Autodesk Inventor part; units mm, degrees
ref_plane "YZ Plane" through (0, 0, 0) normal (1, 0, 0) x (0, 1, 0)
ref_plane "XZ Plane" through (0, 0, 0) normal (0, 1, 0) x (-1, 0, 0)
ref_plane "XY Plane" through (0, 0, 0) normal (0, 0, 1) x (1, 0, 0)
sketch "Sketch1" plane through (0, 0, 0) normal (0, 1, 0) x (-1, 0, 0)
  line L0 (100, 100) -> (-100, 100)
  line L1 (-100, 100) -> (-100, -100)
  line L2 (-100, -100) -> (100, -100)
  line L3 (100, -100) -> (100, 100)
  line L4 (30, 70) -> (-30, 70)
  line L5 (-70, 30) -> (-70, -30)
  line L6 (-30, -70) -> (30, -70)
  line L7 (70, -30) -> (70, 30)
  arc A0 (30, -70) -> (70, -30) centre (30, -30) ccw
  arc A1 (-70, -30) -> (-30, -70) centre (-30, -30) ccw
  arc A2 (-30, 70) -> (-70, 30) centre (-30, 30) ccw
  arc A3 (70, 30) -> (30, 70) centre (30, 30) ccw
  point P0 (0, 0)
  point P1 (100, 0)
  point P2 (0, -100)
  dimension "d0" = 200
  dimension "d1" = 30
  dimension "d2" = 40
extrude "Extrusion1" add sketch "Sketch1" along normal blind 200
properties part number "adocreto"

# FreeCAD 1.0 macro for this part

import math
import FreeCAD as App
import Part
import Sketcher

V = App.Vector
Q = App.Units.Quantity

doc = App.newDocument("Part")
body = doc.addObject("PartDesign::Body", "Body")

# Sketch on XZ plane
sketch1 = doc.addObject("Sketcher::SketchObject", "Sketch")
body.addObject(sketch1)
sketch1.AttachmentSupport = (doc.XZ_Plane, [""])
sketch1.MapMode = "FlatFace"
sketch1.addGeometry([
    Part.LineSegment(V(-100, -100, 0), V(-100, 100, 0)),  # 0
    Part.LineSegment(V(-100, 100, 0), V(100, 100, 0)),  # 1
    Part.LineSegment(V(100, 100, 0), V(100, -100, 0)),  # 2
    Part.LineSegment(V(100, -100, 0), V(-100, -100, 0)),  # 3
    Part.LineSegment(V(30, 70, 0), V(-30, 70, 0)),  # 4
    Part.ArcOfCircle(Part.Circle(V(-30, 30, 0), V(0, 0, 1), 40), math.radians(90), math.radians(180)),  # 5
    Part.LineSegment(V(-70, 30, 0), V(-70, -30, 0)),  # 6
    Part.ArcOfCircle(Part.Circle(V(-30, -30, 0), V(0, 0, 1), 40), math.radians(180), math.radians(270)),  # 7
    Part.LineSegment(V(-30, -70, 0), V(30, -70, 0)),  # 8
    Part.ArcOfCircle(Part.Circle(V(30, -30, 0), V(0, 0, 1), 40), math.radians(-90), math.radians(0)),  # 9
    Part.LineSegment(V(70, -30, 0), V(70, 30, 0)),  # 10
    Part.ArcOfCircle(Part.Circle(V(30, 30, 0), V(0, 0, 1), 40), math.radians(0), math.radians(90)),  # 11
], False)
sketch1.addConstraint([
    Sketcher.Constraint("Coincident", 0, 2, 1, 1),
    Sketcher.Constraint("Coincident", 1, 2, 2, 1),
    Sketcher.Constraint("Coincident", 2, 2, 3, 1),
    Sketcher.Constraint("Coincident", 3, 2, 0, 1),
    Sketcher.Constraint("Tangent", 4, 2, 5, 1),
    Sketcher.Constraint("Tangent", 5, 2, 6, 1),
    Sketcher.Constraint("Tangent", 6, 2, 7, 1),
    Sketcher.Constraint("Tangent", 7, 2, 8, 1),
    Sketcher.Constraint("Tangent", 8, 2, 9, 1),
    Sketcher.Constraint("Tangent", 9, 2, 10, 1),
    Sketcher.Constraint("Tangent", 10, 2, 11, 1),
    Sketcher.Constraint("Tangent", 11, 2, 4, 1),
    Sketcher.Constraint("Vertical", 0),
    Sketcher.Constraint("Horizontal", 1),
    Sketcher.Constraint("Vertical", 2),
    Sketcher.Constraint("Horizontal", 3),
    Sketcher.Constraint("Horizontal", 4),
    Sketcher.Constraint("Vertical", 6),
    Sketcher.Constraint("Horizontal", 8),
    Sketcher.Constraint("Vertical", 10),
    Sketcher.Constraint("Equal", 5, 7),
    Sketcher.Constraint("Equal", 7, 9),
    Sketcher.Constraint("Equal", 9, 11),
    Sketcher.Constraint("Symmetric", 5, 3, 9, 3, -1, 1),
    Sketcher.Constraint("Symmetric", 0, 2, 2, 2, -1, 1),
    Sketcher.Constraint("Equal", 3, 0),
    Sketcher.Constraint("Equal", 8, 6),
    Sketcher.Constraint("Radius", 5, Q("40 mm")),
    Sketcher.Constraint("DistanceX", 1, 1, 1, 2, Q("200 mm")),
    Sketcher.Constraint("DistanceX", 5, 3, -1, 1, Q("30 mm")),
])
pad1 = doc.addObject("PartDesign::Pad", "Pad")
body.addObject(pad1)
pad1.Profile = sketch1
pad1.Length = 200
pad1.Reversed = True

doc.recompute()
